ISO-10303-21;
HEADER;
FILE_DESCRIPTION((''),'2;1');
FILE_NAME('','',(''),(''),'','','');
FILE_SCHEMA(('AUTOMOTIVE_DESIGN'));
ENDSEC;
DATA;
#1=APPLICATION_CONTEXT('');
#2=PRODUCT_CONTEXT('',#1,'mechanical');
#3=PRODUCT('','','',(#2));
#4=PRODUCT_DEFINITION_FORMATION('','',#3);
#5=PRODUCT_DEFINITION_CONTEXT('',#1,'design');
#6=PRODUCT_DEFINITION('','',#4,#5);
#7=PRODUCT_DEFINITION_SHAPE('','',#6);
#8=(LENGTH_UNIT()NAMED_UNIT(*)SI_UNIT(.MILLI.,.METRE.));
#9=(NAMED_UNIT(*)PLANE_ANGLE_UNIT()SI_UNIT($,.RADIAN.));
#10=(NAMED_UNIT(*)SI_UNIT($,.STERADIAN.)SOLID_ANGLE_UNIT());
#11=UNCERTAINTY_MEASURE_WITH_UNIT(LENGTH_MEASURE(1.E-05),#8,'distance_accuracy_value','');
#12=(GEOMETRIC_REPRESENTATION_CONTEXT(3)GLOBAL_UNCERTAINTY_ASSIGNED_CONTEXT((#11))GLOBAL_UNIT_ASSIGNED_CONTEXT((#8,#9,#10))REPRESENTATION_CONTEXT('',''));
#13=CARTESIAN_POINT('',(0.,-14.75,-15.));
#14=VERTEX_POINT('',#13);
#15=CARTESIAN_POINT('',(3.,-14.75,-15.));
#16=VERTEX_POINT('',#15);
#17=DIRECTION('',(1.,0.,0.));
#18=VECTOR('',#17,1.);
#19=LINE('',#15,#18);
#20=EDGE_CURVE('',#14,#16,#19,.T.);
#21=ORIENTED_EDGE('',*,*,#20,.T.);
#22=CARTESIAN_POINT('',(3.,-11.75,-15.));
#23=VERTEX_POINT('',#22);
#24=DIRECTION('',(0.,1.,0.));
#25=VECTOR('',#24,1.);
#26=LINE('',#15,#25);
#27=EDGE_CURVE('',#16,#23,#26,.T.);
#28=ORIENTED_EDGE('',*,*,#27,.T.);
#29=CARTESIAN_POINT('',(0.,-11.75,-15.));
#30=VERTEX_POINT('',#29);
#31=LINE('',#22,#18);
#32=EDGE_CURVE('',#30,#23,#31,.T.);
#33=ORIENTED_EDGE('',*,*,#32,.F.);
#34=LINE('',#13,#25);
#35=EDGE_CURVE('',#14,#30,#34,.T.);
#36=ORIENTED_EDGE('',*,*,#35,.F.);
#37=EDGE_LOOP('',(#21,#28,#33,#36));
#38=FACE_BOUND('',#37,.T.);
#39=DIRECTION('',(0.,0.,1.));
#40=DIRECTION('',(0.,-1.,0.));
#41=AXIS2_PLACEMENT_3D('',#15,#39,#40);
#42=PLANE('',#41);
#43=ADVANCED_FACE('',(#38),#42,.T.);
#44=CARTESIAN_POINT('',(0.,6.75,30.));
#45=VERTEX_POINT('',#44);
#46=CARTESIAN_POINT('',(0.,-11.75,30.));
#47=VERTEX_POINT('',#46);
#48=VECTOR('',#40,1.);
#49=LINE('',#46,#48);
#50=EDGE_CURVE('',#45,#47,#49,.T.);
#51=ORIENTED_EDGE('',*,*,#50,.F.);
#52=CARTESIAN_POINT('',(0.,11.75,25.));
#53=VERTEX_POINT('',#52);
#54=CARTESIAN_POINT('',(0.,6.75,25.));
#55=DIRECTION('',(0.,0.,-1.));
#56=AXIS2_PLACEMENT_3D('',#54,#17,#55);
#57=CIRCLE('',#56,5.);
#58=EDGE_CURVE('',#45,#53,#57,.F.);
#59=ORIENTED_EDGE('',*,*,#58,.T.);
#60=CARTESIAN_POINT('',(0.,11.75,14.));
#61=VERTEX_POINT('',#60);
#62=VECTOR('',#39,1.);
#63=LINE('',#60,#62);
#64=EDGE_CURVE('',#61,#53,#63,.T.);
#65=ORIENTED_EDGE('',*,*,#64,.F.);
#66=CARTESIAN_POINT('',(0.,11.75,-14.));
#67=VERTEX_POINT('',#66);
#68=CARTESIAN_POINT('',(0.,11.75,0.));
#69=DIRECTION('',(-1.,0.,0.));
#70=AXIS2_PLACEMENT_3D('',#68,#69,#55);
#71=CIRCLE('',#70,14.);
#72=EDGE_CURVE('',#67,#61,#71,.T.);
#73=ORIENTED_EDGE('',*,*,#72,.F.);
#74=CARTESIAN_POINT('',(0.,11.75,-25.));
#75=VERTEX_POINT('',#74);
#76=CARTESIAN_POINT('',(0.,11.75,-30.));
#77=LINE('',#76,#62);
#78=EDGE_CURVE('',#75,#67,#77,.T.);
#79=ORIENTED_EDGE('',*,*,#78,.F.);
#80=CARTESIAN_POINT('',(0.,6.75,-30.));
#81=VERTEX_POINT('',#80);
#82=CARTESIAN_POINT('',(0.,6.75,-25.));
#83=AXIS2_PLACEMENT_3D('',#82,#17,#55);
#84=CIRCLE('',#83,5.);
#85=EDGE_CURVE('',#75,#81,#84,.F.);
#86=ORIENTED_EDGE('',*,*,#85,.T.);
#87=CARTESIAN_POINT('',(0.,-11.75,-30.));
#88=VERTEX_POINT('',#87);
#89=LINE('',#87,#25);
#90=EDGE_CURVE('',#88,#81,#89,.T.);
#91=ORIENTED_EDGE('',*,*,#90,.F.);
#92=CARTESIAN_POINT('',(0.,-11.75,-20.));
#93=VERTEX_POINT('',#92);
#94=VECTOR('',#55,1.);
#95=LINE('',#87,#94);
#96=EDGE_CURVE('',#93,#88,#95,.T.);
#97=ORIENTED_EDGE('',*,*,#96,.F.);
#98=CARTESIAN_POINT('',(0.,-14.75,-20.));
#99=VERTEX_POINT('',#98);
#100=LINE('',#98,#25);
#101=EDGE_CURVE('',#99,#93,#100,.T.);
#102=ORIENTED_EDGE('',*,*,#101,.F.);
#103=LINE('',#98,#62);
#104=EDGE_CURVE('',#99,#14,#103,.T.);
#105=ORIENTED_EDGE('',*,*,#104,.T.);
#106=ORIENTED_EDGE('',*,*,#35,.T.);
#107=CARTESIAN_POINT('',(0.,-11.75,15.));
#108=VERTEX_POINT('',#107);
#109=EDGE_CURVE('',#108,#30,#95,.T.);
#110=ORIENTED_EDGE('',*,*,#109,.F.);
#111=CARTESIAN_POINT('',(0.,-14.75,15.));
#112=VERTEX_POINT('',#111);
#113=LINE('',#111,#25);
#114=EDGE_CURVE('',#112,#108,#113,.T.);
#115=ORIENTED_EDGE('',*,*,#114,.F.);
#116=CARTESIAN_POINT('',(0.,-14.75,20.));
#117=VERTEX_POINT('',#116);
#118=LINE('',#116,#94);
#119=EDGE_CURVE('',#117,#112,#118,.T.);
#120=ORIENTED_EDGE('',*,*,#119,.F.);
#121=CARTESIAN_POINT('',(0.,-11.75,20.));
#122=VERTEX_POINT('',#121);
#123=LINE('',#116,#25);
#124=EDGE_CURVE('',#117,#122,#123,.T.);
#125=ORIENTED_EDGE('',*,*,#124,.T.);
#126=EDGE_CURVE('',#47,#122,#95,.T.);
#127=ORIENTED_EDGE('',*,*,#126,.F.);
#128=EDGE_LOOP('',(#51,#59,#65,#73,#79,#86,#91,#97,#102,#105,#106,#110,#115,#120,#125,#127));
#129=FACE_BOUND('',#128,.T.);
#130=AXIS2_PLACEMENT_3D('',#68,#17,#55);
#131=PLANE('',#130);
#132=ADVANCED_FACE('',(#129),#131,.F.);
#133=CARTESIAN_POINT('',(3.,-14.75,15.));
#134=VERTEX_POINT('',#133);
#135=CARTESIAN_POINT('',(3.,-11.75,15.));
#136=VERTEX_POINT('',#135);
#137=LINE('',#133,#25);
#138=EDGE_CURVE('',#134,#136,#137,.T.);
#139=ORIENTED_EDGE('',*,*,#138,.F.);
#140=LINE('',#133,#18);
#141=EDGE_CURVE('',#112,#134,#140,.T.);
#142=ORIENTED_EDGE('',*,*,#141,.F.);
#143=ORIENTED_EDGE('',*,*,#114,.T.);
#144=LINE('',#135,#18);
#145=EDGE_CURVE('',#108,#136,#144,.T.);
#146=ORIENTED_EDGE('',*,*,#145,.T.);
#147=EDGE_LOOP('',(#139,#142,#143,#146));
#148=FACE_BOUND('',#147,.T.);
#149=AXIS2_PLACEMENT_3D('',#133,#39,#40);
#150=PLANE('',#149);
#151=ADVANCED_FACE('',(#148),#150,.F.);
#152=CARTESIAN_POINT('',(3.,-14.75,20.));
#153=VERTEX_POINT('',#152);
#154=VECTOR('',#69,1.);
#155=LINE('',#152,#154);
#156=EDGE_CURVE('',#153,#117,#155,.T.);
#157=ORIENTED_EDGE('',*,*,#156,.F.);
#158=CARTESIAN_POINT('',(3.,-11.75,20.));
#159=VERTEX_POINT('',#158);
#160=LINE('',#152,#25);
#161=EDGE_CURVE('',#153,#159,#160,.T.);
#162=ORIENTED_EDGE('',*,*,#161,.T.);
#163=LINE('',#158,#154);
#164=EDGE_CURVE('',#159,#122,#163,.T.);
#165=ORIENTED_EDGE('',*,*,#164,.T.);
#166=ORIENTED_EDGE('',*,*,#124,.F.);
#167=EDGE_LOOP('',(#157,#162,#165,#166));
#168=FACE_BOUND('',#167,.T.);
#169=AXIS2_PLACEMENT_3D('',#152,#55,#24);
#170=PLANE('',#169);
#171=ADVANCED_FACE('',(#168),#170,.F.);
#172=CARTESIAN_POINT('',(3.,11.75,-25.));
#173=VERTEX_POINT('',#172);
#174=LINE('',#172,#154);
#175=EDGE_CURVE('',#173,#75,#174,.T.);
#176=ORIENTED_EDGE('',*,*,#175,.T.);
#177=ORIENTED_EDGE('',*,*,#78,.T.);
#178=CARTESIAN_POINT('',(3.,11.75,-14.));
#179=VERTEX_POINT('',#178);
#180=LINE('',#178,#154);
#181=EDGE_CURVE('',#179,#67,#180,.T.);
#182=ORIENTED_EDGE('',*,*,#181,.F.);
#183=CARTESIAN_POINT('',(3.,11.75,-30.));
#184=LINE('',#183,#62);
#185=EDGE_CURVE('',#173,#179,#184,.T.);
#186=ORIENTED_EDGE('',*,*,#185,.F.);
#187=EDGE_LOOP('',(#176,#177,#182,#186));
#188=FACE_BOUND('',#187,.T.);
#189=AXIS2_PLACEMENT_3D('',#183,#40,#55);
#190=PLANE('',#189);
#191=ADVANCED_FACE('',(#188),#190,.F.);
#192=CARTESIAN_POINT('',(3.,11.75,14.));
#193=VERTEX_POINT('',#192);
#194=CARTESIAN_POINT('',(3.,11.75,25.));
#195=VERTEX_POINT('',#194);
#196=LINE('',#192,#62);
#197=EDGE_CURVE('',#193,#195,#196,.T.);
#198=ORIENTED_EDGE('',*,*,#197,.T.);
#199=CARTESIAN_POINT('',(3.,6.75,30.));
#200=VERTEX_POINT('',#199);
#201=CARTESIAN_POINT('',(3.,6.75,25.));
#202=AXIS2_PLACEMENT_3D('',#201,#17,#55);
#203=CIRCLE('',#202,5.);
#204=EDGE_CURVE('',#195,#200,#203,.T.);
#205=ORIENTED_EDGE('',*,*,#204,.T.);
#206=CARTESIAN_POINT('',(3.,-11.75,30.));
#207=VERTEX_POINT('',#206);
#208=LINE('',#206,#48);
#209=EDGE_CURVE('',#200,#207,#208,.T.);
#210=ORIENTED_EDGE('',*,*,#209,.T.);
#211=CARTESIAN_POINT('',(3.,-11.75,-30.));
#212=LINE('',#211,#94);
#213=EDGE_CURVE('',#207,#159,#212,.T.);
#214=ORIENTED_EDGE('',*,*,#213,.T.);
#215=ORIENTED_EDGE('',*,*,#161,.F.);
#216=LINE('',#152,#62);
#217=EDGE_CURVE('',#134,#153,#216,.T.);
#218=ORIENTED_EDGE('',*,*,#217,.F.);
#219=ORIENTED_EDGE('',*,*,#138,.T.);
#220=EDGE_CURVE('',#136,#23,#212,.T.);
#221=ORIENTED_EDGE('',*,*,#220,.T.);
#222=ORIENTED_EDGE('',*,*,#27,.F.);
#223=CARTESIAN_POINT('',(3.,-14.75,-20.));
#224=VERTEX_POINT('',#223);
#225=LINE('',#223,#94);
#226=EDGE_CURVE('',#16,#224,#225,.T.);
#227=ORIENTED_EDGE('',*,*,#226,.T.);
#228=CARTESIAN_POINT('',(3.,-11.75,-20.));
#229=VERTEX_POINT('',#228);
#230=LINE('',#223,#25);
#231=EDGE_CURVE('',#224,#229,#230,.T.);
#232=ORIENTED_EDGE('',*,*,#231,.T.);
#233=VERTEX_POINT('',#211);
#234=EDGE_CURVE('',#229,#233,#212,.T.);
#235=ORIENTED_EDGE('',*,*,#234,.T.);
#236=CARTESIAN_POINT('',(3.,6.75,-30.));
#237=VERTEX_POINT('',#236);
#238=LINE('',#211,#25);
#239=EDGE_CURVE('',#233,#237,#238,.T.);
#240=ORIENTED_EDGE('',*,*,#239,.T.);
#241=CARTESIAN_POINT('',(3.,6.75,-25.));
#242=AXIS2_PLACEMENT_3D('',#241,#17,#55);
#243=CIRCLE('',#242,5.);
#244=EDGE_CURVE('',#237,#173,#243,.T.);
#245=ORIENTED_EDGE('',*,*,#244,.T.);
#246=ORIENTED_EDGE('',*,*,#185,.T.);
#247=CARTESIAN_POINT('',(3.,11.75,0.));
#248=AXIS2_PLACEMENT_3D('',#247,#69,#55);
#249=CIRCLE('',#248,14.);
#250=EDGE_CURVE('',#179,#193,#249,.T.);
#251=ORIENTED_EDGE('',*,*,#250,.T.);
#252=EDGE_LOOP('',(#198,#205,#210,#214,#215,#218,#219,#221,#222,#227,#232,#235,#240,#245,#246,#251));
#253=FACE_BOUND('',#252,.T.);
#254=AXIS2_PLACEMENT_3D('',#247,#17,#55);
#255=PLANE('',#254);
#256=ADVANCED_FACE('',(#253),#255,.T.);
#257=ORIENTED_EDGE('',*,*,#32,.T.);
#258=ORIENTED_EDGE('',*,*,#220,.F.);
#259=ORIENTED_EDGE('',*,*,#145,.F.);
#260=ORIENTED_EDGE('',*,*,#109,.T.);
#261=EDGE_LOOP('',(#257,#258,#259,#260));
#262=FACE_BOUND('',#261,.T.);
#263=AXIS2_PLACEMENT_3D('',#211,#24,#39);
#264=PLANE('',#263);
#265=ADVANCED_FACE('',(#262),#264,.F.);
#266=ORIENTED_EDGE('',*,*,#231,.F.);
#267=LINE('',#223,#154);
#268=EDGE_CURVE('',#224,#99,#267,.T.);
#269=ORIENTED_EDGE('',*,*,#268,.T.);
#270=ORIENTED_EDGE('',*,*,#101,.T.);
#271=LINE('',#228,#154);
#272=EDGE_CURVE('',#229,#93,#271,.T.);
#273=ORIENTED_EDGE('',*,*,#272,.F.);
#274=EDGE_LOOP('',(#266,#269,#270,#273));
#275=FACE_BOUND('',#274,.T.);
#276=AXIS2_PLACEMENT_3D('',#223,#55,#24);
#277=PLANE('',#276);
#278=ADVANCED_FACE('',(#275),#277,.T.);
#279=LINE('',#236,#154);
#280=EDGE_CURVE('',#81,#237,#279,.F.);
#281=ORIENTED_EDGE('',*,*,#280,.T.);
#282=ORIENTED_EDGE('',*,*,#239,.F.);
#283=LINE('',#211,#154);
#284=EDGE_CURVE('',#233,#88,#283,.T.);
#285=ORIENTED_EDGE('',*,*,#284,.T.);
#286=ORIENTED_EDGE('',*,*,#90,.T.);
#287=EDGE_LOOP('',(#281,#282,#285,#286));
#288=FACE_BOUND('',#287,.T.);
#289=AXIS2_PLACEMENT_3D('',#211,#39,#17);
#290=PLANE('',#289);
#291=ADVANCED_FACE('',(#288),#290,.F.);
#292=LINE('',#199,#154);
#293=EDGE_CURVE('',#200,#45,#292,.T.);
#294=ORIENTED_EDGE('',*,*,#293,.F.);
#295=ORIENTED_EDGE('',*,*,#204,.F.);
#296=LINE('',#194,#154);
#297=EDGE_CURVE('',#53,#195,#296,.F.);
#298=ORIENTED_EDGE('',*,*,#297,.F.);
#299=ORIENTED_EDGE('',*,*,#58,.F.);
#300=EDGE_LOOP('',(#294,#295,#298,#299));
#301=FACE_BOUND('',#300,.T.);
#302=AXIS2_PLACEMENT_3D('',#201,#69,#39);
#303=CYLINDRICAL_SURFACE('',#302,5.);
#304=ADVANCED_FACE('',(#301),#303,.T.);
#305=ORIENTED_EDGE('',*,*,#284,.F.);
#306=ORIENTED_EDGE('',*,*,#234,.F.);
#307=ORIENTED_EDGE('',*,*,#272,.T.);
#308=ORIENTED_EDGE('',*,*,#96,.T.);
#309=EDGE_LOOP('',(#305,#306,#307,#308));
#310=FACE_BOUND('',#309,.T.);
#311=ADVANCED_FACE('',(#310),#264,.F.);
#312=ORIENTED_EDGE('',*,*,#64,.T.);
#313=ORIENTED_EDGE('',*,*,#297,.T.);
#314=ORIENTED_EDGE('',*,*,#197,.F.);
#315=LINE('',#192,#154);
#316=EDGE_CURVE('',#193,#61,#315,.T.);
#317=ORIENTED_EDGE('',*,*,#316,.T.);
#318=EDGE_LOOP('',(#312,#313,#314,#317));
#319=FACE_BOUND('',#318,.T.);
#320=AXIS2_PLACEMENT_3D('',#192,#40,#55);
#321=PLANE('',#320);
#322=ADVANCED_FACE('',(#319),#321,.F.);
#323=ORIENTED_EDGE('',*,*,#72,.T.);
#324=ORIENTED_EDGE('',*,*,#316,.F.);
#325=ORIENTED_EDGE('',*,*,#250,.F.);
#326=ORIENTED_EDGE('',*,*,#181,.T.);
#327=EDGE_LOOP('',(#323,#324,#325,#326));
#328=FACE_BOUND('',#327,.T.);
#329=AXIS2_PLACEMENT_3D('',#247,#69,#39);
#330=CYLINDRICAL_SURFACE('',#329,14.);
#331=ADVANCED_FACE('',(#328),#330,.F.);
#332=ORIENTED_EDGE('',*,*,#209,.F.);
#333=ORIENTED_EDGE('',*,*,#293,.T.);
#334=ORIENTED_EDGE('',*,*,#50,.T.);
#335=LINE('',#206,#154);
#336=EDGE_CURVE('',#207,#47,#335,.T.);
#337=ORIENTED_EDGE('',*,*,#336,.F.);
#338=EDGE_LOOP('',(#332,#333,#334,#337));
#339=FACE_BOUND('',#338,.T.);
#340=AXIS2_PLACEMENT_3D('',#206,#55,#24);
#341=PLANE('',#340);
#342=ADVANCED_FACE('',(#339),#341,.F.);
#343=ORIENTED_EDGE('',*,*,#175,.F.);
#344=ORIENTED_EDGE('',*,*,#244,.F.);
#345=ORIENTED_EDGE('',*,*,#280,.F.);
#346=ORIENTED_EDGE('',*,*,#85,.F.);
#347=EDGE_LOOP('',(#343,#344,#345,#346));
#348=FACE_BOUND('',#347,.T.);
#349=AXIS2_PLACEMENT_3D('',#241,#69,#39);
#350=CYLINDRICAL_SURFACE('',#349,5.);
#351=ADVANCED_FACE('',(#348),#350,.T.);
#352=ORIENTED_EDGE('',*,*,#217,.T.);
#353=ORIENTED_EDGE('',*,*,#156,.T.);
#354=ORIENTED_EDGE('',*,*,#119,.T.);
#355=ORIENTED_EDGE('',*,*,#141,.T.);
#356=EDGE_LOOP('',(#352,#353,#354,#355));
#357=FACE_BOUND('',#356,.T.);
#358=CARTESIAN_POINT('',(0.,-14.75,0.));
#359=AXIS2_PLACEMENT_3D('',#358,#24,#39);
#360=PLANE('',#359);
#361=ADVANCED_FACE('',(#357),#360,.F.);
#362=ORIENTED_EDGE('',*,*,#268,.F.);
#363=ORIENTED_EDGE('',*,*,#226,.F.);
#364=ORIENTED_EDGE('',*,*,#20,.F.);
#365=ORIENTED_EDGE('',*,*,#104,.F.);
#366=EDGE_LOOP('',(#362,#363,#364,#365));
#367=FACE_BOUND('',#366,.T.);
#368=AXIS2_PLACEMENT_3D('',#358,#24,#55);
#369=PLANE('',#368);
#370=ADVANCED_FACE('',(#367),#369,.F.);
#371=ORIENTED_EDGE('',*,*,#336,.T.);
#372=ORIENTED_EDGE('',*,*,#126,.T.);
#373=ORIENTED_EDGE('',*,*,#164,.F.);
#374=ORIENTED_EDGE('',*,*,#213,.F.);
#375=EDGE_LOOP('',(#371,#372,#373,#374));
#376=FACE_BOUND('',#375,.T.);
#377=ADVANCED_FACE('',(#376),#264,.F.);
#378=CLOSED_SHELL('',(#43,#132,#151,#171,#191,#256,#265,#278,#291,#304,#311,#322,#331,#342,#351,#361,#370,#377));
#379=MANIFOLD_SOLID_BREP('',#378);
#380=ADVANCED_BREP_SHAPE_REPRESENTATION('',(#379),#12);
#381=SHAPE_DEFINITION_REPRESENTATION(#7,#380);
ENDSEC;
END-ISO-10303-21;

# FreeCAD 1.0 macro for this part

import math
import FreeCAD as App
import Part
import Sketcher
from FreeCAD import Vector
Q = App.Units.Quantity


def edges_at(feature, points):
    """Names of the edges that pass closest to the given points."""
    edges = feature.Shape.Edges
    near = lambda p: min(range(len(edges)), key=lambda i: edges[i].distToShape(Part.Vertex(*p))[0])
    return sorted({f"Edge{near(p) + 1}" for p in points})


def add_polygon(sketch, points):
    """Adds a closed chain of lines whose ends are joined by coincident constraints."""
    first, n = sketch.GeometryCount, len(points)
    for a, b in zip(points, points[1:] + points[:1]):
        sketch.addGeometry(Part.LineSegment(App.Vector(*a, 0), App.Vector(*b, 0)), False)
    for i in range(n):
        sketch.addConstraint(Sketcher.Constraint("Coincident", first + i, 2, first + (i + 1) % n, 1))

doc = App.newDocument("Part")
body = doc.addObject("PartDesign::Body", "Body")

# Sketch on YZ plane
sketch1 = body.newObject("Sketcher::SketchObject", "Sketch")
sketch1.AttachmentSupport = (doc.getObject("YZ_Plane"), [""])
sketch1.MapMode = "FlatFace"
sketch1.addGeometry(Part.LineSegment(Vector(12, 14, 0), Vector(12, 30, 0)), False)
sketch1.addGeometry(Part.LineSegment(Vector(12, 30, 0), Vector(-12, 30, 0)), False)
sketch1.addGeometry(Part.LineSegment(Vector(-12, 30, 0), Vector(-12, -30, 0)), False)
sketch1.addGeometry(Part.LineSegment(Vector(-12, -30, 0), Vector(12, -30, 0)), False)
sketch1.addGeometry(Part.LineSegment(Vector(12, -30, 0), Vector(12, -14, 0)), False)
sketch1.addGeometry(Part.ArcOfCircle(Part.Circle(Vector(12, 0, 0), Vector(0, 0, 1), 14), math.radians(90), math.radians(270)), False)
sketch1.addConstraint(Sketcher.Constraint("Coincident", 0, 2, 1, 1))
sketch1.addConstraint(Sketcher.Constraint("Coincident", 1, 2, 2, 1))
sketch1.addConstraint(Sketcher.Constraint("Coincident", 2, 2, 3, 1))
sketch1.addConstraint(Sketcher.Constraint("Coincident", 3, 2, 4, 1))
sketch1.addConstraint(Sketcher.Constraint("Coincident", 4, 2, 5, 2))
sketch1.addConstraint(Sketcher.Constraint("Coincident", 5, 1, 0, 1))
sketch1.addConstraint(Sketcher.Constraint("Vertical", 0))
sketch1.addConstraint(Sketcher.Constraint("Horizontal", 1))
sketch1.addConstraint(Sketcher.Constraint("Vertical", 2))
sketch1.addConstraint(Sketcher.Constraint("Horizontal", 3))
sketch1.addConstraint(Sketcher.Constraint("Vertical", 4))
sketch1.addConstraint(Sketcher.Constraint("Symmetric", 0, 2, 2, 2, -1, 1))
sketch1.addConstraint(Sketcher.Constraint("Symmetric", 4, 2, 5, 1, -1))
sketch1.addConstraint(Sketcher.Constraint("Vertical", 5, 3, 0, 2))
sketch1.addConstraint(Sketcher.Constraint("Radius", 5, Q("14 mm")))
sketch1.addConstraint(Sketcher.Constraint("DistanceY", 0, 1, 0, 2, Q("16 mm")))
sketch1.addConstraint(Sketcher.Constraint("DistanceX", 1, 2, 1, 1, Q("23.5 mm")))
pad1 = body.newObject("PartDesign::Pad", "Pad")
pad1.Profile = sketch1
pad1.Length = 3
doc.recompute()

fillet = body.newObject("PartDesign::Fillet", "Fillet")
fillet.Base = (pad1, edges_at(pad1, [(1.5, 11.75, 30), (1.5, 11.75, -30)]))
fillet.Radius = 5

# Sketch on XZ plane
sketch2 = body.newObject("Sketcher::SketchObject", "Sketch001")
sketch2.AttachmentSupport = (doc.getObject("XZ_Plane"), [""])
sketch2.MapMode = "FlatFace"
sketch2.AttachmentOffset = App.Placement(Vector(0, 0, 11.75), App.Rotation())
add_polygon(sketch2, [(0, 20), (0, 15), (3, 15), (3, 20)])  # lines 0-3
sketch2.addConstraint(Sketcher.Constraint("Vertical", 0))
sketch2.addConstraint(Sketcher.Constraint("Horizontal", 1))
sketch2.addConstraint(Sketcher.Constraint("Vertical", 2))
sketch2.addConstraint(Sketcher.Constraint("Horizontal", 3))
sketch2.addConstraint(Sketcher.Constraint("PointOnObject", 0, 2, -2))
sketch2.addConstraint(Sketcher.Constraint("DistanceX", 1, 1, 1, 2, Q("3 mm")))
sketch2.addConstraint(Sketcher.Constraint("DistanceY", 0, 2, 0, 1, Q("5 mm")))
sketch2.addConstraint(Sketcher.Constraint("DistanceY", -1, 1, 0, 2, Q("15 mm")))
pad2 = body.newObject("PartDesign::Pad", "Pad001")
pad2.Profile = sketch2
pad2.Length = 3
doc.recompute()

mirrored = body.newObject("PartDesign::Mirrored", "Mirrored")
mirrored.Originals = [pad2]
mirrored.MirrorPlane = (doc.getObject("XY_Plane"), [""])
body.Tip = mirrored

doc.recompute()
